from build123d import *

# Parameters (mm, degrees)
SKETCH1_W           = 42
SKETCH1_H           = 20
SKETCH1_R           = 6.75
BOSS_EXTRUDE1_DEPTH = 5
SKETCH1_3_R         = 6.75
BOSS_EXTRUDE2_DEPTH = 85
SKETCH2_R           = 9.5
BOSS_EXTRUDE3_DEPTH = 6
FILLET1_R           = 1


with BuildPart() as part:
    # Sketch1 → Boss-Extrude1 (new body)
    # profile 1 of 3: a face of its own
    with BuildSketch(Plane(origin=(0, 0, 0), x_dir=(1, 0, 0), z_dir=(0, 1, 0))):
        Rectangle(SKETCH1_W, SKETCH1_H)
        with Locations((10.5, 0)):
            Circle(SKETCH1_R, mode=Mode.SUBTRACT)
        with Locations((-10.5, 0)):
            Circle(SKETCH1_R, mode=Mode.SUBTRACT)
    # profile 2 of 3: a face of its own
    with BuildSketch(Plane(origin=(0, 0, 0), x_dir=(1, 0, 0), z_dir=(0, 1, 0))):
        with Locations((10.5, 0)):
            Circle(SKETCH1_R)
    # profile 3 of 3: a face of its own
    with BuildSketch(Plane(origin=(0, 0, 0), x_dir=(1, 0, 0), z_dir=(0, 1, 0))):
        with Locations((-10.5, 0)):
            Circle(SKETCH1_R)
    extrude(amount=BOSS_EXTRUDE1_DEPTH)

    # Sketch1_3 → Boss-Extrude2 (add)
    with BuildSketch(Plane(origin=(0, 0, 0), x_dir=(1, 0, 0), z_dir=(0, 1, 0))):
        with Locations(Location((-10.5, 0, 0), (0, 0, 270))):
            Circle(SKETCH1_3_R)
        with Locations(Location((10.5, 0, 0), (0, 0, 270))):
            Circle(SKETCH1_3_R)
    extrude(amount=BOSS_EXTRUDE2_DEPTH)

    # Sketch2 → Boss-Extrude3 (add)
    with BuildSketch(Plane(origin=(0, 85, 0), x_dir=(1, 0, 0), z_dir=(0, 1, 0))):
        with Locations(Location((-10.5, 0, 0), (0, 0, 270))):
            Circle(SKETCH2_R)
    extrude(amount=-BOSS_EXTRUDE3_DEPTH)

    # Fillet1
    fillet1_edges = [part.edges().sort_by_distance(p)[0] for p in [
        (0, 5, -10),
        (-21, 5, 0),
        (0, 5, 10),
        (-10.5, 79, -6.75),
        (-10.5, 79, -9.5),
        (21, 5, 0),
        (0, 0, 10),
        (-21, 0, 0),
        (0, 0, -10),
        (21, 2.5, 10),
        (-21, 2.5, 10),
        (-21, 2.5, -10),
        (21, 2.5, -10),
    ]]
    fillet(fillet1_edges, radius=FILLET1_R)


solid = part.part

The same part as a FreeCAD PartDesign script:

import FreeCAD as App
import Part
import Sketcher

V = App.Vector


def edges_at(feature, points):
    """Names of the edges that pass closest to the given points."""
    edges = feature.Shape.Edges
    near = lambda p: min(range(len(edges)), key=lambda i: edges[i].distToShape(Part.Vertex(*p))[0])
    return sorted({f"Edge{near(p) + 1}" for p in points})

doc = App.newDocument("Part")
body = doc.addObject("PartDesign::Body", "Body")

sketch1 = body.newObject("Sketcher::SketchObject", "Sketch")
sketch1.AttachmentSupport = (doc.getObject("XZ_Plane"), [""])
sketch1.MapMode = "FlatFace"
sketch1.addGeometry(Part.LineSegment(V(-21, -10, 0), V(-21, 10, 0)), False)
sketch1.addGeometry(Part.LineSegment(V(-21, 10, 0), V(21, 10, 0)), False)
sketch1.addGeometry(Part.LineSegment(V(21, 10, 0), V(21, -10, 0)), False)
sketch1.addGeometry(Part.LineSegment(V(21, -10, 0), V(-21, -10, 0)), False)
sketch1.addConstraint(Sketcher.Constraint("Coincident", 0, 2, 1, 1))
sketch1.addConstraint(Sketcher.Constraint("Coincident", 1, 2, 2, 1))
sketch1.addConstraint(Sketcher.Constraint("Coincident", 2, 2, 3, 1))
sketch1.addConstraint(Sketcher.Constraint("Coincident", 3, 2, 0, 1))
sketch1.addConstraint(Sketcher.Constraint("Vertical", 0))
sketch1.addConstraint(Sketcher.Constraint("Horizontal", 1))
sketch1.addConstraint(Sketcher.Constraint("Vertical", 2))
sketch1.addConstraint(Sketcher.Constraint("Horizontal", 3))
sketch1.addConstraint(Sketcher.Constraint("Symmetric", 0, 2, 2, 2, -1, 1))
sketch1.addConstraint(Sketcher.Constraint("DistanceX", 1, 1, 1, 2, 42.0))
sketch1.addConstraint(Sketcher.Constraint("DistanceY", 0, 1, 0, 2, 20.0))
pad1 = body.newObject("PartDesign::Pad", "Pad")
pad1.Profile = sketch1
pad1.Length = 5
pad1.Reversed = True

sketch2 = body.newObject("Sketcher::SketchObject", "Sketch001")
sketch2.AttachmentSupport = (doc.getObject("XZ_Plane"), [""])
sketch2.MapMode = "FlatFace"
sketch2.addGeometry(Part.Circle(V(-10, 0, 0), V(0, 0, 1), 7), False)
sketch2.addGeometry(Part.Circle(V(10, 0, 0), V(0, 0, 1), 7), False)
sketch2.addConstraint(Sketcher.Constraint("Equal", 0, 1))
sketch2.addConstraint(Sketcher.Constraint("Symmetric", 0, 3, 1, 3, -1, 1))
sketch2.addConstraint(Sketcher.Constraint("PointOnObject", 0, 3, -1))
sketch2.addConstraint(Sketcher.Constraint("Diameter", 0, 13.5))
sketch2.addConstraint(Sketcher.Constraint("DistanceX", 0, 3, 1, 3, 21.0))
pad2 = body.newObject("PartDesign::Pad", "Pad001")
pad2.Profile = sketch2
pad2.Length = 85
pad2.Reversed = True

sketch3 = body.newObject("Sketcher::SketchObject", "Sketch002")
sketch3.AttachmentSupport = (doc.getObject("XZ_Plane"), [""])
sketch3.MapMode = "FlatFace"
sketch3.AttachmentOffset = App.Placement(V(0, 0, -85), App.Rotation())
sketch3.addGeometry(Part.Circle(V(-10, 0, 0), V(0, 0, 1), 10), False)
sketch3.addConstraint(Sketcher.Constraint("PointOnObject", 0, 3, -1))
sketch3.addConstraint(Sketcher.Constraint("Diameter", 0, 19.0))
sketch3.addConstraint(Sketcher.Constraint("DistanceX", 0, 3, -1, 1, 10.5))
pad3 = body.newObject("PartDesign::Pad", "Pad002")
pad3.Profile = sketch3
pad3.Length = 6
doc.recompute()

fillet = body.newObject("PartDesign::Fillet", "Fillet")
fillet.Base = (pad3, edges_at(pad3, [
    (0, 5, -10),
    (-21, 5, 0),
    (0, 5, 10),
    (-10.5, 79, -6.75),
    (-10.5, 79, -9.5),
    (21, 5, 0),
    (0, 0, 10),
    (-21, 0, 0),
    (0, 0, -10),
    (21, 2.5, 10),
    (-21, 2.5, 10),
    (-21, 2.5, -10),
    (21, 2.5, -10),
]))
fillet.Radius = 1

doc.recompute()
